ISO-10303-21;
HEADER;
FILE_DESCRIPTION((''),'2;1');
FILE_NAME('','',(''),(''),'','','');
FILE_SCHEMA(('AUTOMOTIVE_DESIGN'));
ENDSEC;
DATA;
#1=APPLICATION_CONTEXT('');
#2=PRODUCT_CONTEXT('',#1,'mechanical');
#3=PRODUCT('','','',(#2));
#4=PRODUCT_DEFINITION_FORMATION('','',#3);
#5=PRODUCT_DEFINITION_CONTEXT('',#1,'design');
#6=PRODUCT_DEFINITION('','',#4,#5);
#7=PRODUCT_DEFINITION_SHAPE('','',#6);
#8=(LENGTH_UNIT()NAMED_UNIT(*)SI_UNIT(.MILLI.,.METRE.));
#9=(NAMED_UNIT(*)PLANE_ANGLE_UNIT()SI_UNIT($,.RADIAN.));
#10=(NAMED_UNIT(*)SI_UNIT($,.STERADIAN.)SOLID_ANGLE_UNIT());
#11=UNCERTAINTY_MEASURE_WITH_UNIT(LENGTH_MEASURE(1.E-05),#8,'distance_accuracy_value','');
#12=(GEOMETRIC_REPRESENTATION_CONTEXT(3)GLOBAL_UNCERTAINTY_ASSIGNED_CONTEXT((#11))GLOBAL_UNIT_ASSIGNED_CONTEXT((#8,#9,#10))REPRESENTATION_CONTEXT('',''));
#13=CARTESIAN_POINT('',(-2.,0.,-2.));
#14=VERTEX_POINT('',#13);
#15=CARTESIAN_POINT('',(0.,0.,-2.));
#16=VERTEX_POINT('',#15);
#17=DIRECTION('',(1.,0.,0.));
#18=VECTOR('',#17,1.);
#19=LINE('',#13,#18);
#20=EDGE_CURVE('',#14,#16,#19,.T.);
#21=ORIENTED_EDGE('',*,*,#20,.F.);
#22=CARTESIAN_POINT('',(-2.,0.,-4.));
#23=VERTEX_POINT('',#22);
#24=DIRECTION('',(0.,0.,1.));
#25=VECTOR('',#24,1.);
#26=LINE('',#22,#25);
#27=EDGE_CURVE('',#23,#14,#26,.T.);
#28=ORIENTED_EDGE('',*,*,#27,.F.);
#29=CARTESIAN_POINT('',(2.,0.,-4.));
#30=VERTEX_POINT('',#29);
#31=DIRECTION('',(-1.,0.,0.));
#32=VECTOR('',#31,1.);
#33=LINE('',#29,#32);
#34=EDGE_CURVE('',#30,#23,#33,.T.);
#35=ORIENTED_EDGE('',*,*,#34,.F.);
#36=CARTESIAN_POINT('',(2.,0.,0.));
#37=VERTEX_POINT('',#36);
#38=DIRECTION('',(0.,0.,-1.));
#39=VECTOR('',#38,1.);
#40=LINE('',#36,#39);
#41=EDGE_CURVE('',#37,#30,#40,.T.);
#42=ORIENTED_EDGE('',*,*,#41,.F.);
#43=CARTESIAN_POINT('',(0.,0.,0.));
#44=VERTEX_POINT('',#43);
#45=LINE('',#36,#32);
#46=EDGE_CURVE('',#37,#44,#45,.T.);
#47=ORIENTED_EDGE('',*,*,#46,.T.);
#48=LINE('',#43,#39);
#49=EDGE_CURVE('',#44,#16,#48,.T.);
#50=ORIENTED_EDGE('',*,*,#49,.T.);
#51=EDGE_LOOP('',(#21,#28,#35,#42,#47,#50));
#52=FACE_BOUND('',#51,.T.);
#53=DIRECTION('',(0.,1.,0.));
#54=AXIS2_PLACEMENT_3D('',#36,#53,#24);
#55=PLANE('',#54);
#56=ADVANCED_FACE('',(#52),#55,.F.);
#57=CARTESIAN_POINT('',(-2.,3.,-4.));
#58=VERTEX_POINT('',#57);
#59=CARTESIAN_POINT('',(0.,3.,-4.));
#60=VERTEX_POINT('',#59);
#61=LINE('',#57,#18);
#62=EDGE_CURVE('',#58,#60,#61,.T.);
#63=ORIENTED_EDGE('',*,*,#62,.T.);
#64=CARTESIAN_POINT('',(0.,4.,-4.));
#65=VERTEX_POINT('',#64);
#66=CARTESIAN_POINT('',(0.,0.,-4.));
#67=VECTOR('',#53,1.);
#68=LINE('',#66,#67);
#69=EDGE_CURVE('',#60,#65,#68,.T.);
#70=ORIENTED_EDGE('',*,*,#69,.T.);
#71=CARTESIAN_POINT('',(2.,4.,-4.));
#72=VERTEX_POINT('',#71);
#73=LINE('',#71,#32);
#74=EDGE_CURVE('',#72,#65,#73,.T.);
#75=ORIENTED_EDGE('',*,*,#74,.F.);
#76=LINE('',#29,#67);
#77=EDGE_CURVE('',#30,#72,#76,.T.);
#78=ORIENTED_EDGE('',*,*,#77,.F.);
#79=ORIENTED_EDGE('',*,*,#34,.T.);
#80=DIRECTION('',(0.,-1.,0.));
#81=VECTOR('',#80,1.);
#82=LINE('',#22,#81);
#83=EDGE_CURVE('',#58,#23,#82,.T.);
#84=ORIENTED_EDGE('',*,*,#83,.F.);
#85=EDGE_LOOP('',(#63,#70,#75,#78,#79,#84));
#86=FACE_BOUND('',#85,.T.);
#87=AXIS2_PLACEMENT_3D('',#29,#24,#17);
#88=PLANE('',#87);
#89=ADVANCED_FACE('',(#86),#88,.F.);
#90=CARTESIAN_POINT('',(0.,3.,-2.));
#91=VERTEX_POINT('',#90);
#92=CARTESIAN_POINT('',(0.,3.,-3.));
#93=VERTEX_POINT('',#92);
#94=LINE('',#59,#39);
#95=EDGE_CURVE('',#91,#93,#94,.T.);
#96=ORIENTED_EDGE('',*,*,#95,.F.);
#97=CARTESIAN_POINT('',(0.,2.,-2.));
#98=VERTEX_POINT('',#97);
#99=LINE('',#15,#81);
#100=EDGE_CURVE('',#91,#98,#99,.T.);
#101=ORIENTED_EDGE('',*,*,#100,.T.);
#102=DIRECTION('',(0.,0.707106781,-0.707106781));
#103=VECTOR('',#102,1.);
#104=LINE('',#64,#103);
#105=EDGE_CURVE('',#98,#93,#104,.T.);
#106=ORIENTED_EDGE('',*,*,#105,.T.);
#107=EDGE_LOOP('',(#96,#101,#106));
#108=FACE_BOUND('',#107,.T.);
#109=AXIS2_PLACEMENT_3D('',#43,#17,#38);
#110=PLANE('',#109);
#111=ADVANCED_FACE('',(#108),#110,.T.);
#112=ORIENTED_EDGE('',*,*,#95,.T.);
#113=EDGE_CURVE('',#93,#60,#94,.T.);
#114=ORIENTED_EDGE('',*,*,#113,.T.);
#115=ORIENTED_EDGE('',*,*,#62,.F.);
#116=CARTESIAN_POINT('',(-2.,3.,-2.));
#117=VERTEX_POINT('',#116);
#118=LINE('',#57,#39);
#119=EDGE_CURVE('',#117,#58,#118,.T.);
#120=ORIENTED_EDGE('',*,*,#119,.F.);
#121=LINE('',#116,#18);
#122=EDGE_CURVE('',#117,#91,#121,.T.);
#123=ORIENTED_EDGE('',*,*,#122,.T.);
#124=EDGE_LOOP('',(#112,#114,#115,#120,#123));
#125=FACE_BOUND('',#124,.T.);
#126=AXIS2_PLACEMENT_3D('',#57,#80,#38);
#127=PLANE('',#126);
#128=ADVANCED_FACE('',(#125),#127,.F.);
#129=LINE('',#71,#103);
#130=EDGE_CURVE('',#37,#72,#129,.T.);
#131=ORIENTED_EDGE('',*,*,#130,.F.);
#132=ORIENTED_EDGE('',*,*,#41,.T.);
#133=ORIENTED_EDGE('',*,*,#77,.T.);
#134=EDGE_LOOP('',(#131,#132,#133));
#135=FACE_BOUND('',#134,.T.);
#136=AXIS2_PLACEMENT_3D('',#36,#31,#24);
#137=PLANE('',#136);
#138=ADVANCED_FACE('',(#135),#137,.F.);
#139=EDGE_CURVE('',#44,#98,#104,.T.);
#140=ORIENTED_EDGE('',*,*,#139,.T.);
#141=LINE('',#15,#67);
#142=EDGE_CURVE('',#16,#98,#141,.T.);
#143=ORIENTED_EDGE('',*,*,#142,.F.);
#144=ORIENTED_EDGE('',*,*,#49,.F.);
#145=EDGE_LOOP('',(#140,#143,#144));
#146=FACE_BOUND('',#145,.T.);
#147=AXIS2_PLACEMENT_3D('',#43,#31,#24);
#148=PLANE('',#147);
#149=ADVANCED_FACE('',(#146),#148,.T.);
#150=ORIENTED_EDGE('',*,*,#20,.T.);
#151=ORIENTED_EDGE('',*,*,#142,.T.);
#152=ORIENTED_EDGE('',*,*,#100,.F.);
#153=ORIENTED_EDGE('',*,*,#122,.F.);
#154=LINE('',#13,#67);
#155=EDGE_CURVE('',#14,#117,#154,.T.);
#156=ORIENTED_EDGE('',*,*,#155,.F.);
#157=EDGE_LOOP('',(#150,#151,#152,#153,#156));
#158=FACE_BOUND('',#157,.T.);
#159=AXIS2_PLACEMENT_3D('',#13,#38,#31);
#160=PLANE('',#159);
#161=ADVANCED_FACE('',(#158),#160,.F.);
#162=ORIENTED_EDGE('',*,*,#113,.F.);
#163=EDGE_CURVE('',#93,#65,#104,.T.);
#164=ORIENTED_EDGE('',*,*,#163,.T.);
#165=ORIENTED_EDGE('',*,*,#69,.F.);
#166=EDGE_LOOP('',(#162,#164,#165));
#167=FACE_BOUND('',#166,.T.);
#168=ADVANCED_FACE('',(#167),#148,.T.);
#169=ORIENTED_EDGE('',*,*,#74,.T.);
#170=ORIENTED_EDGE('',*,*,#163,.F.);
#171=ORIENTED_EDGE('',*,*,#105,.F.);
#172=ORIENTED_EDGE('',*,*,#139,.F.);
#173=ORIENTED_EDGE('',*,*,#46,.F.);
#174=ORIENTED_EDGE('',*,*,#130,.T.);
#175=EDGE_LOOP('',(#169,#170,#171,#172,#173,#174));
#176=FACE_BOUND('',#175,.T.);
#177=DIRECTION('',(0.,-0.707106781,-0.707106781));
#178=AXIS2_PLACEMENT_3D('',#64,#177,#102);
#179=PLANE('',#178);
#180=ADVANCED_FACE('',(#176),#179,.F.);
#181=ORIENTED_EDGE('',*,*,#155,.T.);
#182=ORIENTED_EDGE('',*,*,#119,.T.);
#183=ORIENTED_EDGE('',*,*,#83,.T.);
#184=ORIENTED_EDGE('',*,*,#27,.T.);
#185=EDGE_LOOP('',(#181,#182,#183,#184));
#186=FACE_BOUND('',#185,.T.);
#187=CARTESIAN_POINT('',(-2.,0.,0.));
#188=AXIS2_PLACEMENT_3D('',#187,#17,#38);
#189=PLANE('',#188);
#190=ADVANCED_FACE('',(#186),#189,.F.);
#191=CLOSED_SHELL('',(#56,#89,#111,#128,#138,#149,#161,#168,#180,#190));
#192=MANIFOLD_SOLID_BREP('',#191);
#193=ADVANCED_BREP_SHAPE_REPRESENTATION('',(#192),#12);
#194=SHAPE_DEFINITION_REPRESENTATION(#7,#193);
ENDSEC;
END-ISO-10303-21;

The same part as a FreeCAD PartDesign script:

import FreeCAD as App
import Part
import Sketcher
Q = App.Units.Quantity


def add_polygon(sketch, points):
    """Adds a closed chain of lines whose ends are joined by coincident constraints."""
    first, n = sketch.GeometryCount, len(points)
    for a, b in zip(points, points[1:] + points[:1]):
        sketch.addGeometry(Part.LineSegment(App.Vector(*a, 0), App.Vector(*b, 0)), False)
    for i in range(n):
        sketch.addConstraint(Sketcher.Constraint("Coincident", first + i, 2, first + (i + 1) % n, 1))

doc = App.newDocument("Part")
params = doc.addObject("Spreadsheet::Sheet", "Params")
for row, (alias, value) in enumerate([
    ("sketch1_width", "4 mm"),
    ("pad1_length", "2 mm"),
    ("sketch2_width", "3 mm"),
    ("sketch2_height", "2 mm"),
    ("pad2_length", "2 mm"),
    ("sketch3_width", "4 mm"),
    ("pocket1_length", "2 mm"),
], start=1):
    params.set(f"A{row}", alias)
    params.set(f"B{row}", "=" + value)
    params.setAlias(f"B{row}", alias)

body = doc.addObject("PartDesign::Body", "Body")

sketch1 = body.newObject("Sketcher::SketchObject", "Sketch")
sketch1.AttachmentSupport = (doc.getObject("YZ_Plane"), [""])
sketch1.MapMode = "FlatFace"
add_polygon(sketch1, [(4, 0), (0, 0), (0, -4), (4, -4)])
sketch1.addConstraint(Sketcher.Constraint("Horizontal", 0))
sketch1.addConstraint(Sketcher.Constraint("Vertical", 1))
sketch1.addConstraint(Sketcher.Constraint("Horizontal", 2))
sketch1.addConstraint(Sketcher.Constraint("Vertical", 3))
sketch1.addConstraint(Sketcher.Constraint("Coincident", 0, 2, -1, 1))
sketch1.addConstraint(Sketcher.Constraint("Equal", 2, 1))
sketch1.addConstraint(Sketcher.Constraint("DistanceX", 0, 2, 0, 1, Q("4 mm")))
sketch1.setExpression("Constraints[10]", "Params.sketch1_width")
pad1 = body.newObject("PartDesign::Pad", "Pad")
pad1.Profile = sketch1
pad1.setExpression("Length", "Params.pad1_length")

sketch2 = body.newObject("Sketcher::SketchObject", "Sketch001")
sketch2.AttachmentSupport = (doc.getObject("YZ_Plane"), [""])
sketch2.MapMode = "FlatFace"
add_polygon(sketch2, [(3, -4), (0, -4), (0, -2), (3, -2)])
sketch2.addConstraint(Sketcher.Constraint("Horizontal", 0))
sketch2.addConstraint(Sketcher.Constraint("Vertical", 1))
sketch2.addConstraint(Sketcher.Constraint("Horizontal", 2))
sketch2.addConstraint(Sketcher.Constraint("Vertical", 3))
sketch2.addConstraint(Sketcher.Constraint("PointOnObject", 0, 2, -2))
sketch2.addConstraint(Sketcher.Constraint("DistanceX", 0, 2, 0, 1, Q("3 mm")))
sketch2.addConstraint(Sketcher.Constraint("DistanceY", 1, 1, 1, 2, Q("2 mm")))
sketch2.addConstraint(Sketcher.Constraint("DistanceY", 0, 2, -1, 1, Q("4 mm")))
sketch2.setExpression("Constraints[9]", "Params.sketch2_width")
sketch2.setExpression("Constraints[10]", "Params.sketch2_height")
pad2 = body.newObject("PartDesign::Pad", "Pad001")
pad2.Profile = sketch2
pad2.setExpression("Length", "Params.pad2_length")
pad2.Reversed = True

sketch3 = body.newObject("Sketcher::SketchObject", "Sketch002")
sketch3.AttachmentSupport = (doc.getObject("YZ_Plane"), [""])
sketch3.MapMode = "FlatFace"
sketch3.AttachmentOffset = App.Placement(App.Vector(0, 0, 2), App.Rotation())
add_polygon(sketch3, [(0, 0), (4, -4), (4, 0)])
sketch3.addConstraint(Sketcher.Constraint("Vertical", 1))
sketch3.addConstraint(Sketcher.Constraint("Horizontal", 2))
sketch3.addConstraint(Sketcher.Constraint("Coincident", 2, 2, -1, 1))
sketch3.addConstraint(Sketcher.Constraint("Equal", 2, 1))
sketch3.addConstraint(Sketcher.Constraint("DistanceX", 2, 2, 2, 1, Q("4 mm")))
sketch3.setExpression("Constraints[7]", "Params.sketch3_width")
pocket1 = body.newObject("PartDesign::Pocket", "Pocket")
pocket1.Profile = sketch3
pocket1.setExpression("Length", "Params.pocket1_length")

doc.recompute()
